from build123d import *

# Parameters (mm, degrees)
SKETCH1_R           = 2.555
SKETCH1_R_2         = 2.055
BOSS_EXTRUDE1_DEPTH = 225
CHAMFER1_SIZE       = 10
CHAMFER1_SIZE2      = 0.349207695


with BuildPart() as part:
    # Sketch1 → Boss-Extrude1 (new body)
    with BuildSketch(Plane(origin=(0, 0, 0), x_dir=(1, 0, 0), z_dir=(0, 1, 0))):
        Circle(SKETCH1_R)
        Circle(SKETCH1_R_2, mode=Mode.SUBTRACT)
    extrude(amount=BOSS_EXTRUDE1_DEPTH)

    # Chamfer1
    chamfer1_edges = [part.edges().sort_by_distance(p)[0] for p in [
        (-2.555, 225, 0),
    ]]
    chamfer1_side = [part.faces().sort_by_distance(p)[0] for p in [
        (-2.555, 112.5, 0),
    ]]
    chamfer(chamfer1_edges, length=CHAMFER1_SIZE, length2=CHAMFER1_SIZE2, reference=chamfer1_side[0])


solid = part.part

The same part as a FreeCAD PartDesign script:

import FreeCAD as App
import Part
import Sketcher


def edges_at(feature, points):
    """Names of the edges that pass closest to the given points."""
    edges = feature.Shape.Edges
    near = lambda p: min(range(len(edges)), key=lambda i: edges[i].distToShape(Part.Vertex(*p))[0])
    return sorted({f"Edge{near(p) + 1}" for p in points})

doc = App.newDocument("Part")
body = doc.addObject("PartDesign::Body", "Body")

sketch1 = body.newObject("Sketcher::SketchObject", "Sketch")
sketch1.AttachmentSupport = (doc.getObject("XZ_Plane"), [""])
sketch1.MapMode = "FlatFace"
sketch1.addGeometry(Part.Circle(App.Vector(0, 0, 0), App.Vector(0, 0, 1), 2.6), False)
sketch1.addGeometry(Part.Circle(App.Vector(0, 0, 0), App.Vector(0, 0, 1), 2.1), False)
sketch1.addConstraint(Sketcher.Constraint("Coincident", 0, 3, -1, 1))
sketch1.addConstraint(Sketcher.Constraint("Coincident", 1, 3, -1, 1))
sketch1.addConstraint(Sketcher.Constraint("Diameter", 0, 5.11))
sketch1.addConstraint(Sketcher.Constraint("Diameter", 1, 4.11))
pad1 = body.newObject("PartDesign::Pad", "Pad")
pad1.Profile = sketch1
pad1.Length = 225
pad1.Reversed = True
doc.recompute()

chamfer = body.newObject("PartDesign::Chamfer", "Chamfer")
chamfer.Base = (pad1, edges_at(pad1, [(-2.555, 225, 0)]))
chamfer.ChamferType = "Two distances"
chamfer.Size = 10
chamfer.Size2 = 0.349208

doc.recompute()
